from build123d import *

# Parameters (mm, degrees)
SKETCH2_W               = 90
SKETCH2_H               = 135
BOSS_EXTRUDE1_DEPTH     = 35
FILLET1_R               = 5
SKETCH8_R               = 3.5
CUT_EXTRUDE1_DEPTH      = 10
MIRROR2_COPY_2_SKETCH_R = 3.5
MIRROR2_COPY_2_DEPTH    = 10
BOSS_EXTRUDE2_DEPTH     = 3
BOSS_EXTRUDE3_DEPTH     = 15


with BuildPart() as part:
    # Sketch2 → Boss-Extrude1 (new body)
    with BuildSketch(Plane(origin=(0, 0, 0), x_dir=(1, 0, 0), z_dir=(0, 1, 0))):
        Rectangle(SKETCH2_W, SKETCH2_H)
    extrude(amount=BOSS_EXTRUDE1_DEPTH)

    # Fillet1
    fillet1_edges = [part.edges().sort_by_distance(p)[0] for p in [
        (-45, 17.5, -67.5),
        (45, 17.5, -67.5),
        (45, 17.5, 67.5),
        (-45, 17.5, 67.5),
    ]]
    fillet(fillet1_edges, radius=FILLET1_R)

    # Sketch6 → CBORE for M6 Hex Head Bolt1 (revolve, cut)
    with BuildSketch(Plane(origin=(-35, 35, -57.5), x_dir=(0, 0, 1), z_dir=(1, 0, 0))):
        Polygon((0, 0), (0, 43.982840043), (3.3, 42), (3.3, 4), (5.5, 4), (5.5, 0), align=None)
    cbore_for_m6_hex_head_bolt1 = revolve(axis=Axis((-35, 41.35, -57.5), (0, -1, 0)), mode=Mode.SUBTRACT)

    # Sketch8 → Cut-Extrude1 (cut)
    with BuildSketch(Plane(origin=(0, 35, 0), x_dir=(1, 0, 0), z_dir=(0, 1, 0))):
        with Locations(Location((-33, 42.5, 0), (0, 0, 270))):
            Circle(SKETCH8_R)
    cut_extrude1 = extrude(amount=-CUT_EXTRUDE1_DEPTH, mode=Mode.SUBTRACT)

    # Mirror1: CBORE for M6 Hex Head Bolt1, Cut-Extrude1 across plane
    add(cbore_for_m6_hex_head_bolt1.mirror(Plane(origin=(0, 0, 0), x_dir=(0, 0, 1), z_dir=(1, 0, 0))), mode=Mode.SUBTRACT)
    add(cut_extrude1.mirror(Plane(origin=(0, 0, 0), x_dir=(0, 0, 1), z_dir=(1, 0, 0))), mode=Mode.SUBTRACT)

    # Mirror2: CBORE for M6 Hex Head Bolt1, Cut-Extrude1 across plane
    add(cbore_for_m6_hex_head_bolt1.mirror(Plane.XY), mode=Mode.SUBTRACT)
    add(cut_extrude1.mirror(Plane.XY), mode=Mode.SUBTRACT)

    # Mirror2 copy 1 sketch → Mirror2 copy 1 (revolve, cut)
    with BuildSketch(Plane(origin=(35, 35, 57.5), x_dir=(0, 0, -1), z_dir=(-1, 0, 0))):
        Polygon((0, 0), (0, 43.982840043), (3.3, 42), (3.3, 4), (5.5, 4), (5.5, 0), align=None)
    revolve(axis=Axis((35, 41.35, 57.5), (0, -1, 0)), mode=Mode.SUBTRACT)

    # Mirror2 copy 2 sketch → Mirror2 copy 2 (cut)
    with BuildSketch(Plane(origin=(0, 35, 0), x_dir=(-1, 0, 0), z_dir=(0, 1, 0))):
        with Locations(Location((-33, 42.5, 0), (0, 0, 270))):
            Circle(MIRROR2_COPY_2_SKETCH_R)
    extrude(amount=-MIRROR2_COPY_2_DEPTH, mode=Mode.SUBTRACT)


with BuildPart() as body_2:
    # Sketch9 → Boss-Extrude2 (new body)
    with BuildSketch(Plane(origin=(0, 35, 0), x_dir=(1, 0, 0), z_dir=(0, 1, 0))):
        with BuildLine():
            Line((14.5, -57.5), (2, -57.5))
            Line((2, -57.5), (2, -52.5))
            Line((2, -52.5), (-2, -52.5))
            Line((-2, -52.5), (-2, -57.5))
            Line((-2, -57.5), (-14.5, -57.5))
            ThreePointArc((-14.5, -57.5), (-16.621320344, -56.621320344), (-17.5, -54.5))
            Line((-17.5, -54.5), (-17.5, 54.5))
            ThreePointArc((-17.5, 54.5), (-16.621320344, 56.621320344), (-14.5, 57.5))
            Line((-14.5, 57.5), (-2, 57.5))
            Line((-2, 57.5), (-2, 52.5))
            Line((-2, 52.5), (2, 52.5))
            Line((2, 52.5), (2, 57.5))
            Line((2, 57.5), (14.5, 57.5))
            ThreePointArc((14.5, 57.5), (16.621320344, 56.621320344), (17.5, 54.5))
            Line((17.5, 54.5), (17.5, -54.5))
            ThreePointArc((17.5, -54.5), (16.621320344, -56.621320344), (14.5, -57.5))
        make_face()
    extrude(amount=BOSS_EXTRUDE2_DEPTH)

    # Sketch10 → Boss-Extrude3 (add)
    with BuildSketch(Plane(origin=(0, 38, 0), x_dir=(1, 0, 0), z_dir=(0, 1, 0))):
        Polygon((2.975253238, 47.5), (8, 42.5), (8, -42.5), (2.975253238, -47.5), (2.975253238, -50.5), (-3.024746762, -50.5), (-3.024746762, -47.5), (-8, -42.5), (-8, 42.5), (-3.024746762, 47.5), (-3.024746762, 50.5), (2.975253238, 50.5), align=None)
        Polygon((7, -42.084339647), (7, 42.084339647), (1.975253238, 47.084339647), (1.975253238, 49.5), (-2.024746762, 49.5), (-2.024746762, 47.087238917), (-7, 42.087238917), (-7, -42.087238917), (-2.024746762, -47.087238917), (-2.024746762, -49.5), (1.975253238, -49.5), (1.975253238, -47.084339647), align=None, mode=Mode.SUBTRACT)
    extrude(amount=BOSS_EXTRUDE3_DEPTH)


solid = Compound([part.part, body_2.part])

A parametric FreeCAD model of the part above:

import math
import FreeCAD as App
import Part
import Sketcher

V = App.Vector
Q = App.Units.Quantity


def edges_at(feature, points):
    """Names of the edges that pass closest to the given points."""
    edges = feature.Shape.Edges
    near = lambda p: min(range(len(edges)), key=lambda i: edges[i].distToShape(Part.Vertex(*p))[0])
    return sorted({f"Edge{near(p) + 1}" for p in points})

doc = App.newDocument("Part")
body = doc.addObject("PartDesign::Body", "Body")

sketch1 = body.newObject("Sketcher::SketchObject", "Sketch")
sketch1.AttachmentSupport = (doc.getObject("XZ_Plane"), [""])
sketch1.MapMode = "FlatFace"
sketch1.addGeometry([
    Part.LineSegment(V(-45, -68, 0), V(-45, 68, 0)),
    Part.LineSegment(V(-45, 68, 0), V(45, 68, 0)),
    Part.LineSegment(V(45, 68, 0), V(45, -68, 0)),
    Part.LineSegment(V(45, -68, 0), V(-45, -68, 0)),
], False)
sketch1.addConstraint([
    Sketcher.Constraint("Coincident", 0, 2, 1, 1),
    Sketcher.Constraint("Coincident", 1, 2, 2, 1),
    Sketcher.Constraint("Coincident", 2, 2, 3, 1),
    Sketcher.Constraint("Coincident", 3, 2, 0, 1),
    Sketcher.Constraint("Vertical", 0),
    Sketcher.Constraint("Horizontal", 1),
    Sketcher.Constraint("Vertical", 2),
    Sketcher.Constraint("Horizontal", 3),
    Sketcher.Constraint("Symmetric", 0, 2, 2, 2, -1, 1),
    Sketcher.Constraint("DistanceX", 1, 1, 1, 2, Q("90 mm")),
    Sketcher.Constraint("DistanceY", 0, 1, 0, 2, Q("135 mm")),
])
pad1 = body.newObject("PartDesign::Pad", "Pad")
pad1.Profile = sketch1
pad1.Length = 35
pad1.Reversed = True
doc.recompute()

fillet = body.newObject("PartDesign::Fillet", "Fillet")
fillet.Base = (pad1, edges_at(pad1, [
    (-45, 17.5, -67.5),
    (45, 17.5, -67.5),
    (45, 17.5, 67.5),
    (-45, 17.5, 67.5),
]))
fillet.Radius = 5

sketch2 = body.newObject("Sketcher::SketchObject", "Sketch001")
sketch2.AttachmentSupport = (doc.getObject("YZ_Plane"), [""])
sketch2.MapMode = "FlatFace"
sketch2.AttachmentOffset = App.Placement(V(0, 0, -35), App.Rotation())
sketch2.addGeometry([
    Part.LineSegment(V(-9, -57.5, 0), V(35, -57.5, 0)),
    Part.LineSegment(V(35, -57.5, 0), V(35, -52, 0)),
    Part.LineSegment(V(35, -52, 0), V(31, -52, 0)),
    Part.LineSegment(V(31, -52, 0), V(31, -54.2, 0)),
    Part.LineSegment(V(31, -54.2, 0), V(-7, -54.2, 0)),
    Part.LineSegment(V(-7, -54.2, 0), V(-9, -57.5, 0)),
], False)
sketch2.addGeometry(Part.LineSegment(V(35, -57.5, 0), V(-9, -57.5, 0)), True)
sketch2.addConstraint([
    Sketcher.Constraint("Coincident", 0, 2, 1, 1),
    Sketcher.Constraint("Coincident", 1, 2, 2, 1),
    Sketcher.Constraint("Coincident", 2, 2, 3, 1),
    Sketcher.Constraint("Coincident", 3, 2, 4, 1),
    Sketcher.Constraint("Coincident", 4, 2, 5, 1),
    Sketcher.Constraint("Coincident", 5, 2, 0, 1),
    Sketcher.Constraint("Horizontal", 0),
    Sketcher.Constraint("Vertical", 1),
    Sketcher.Constraint("Horizontal", 2),
    Sketcher.Constraint("Vertical", 3),
    Sketcher.Constraint("Horizontal", 4),
    Sketcher.Constraint("Horizontal", 6),
    Sketcher.Constraint("Coincident", 6, 1, 0, 2),
    Sketcher.Constraint("Equal", 0, 6),
    Sketcher.Constraint("DistanceX", 2, 2, 2, 1, Q("4 mm")),
    Sketcher.Constraint("DistanceX", 4, 2, 4, 1, Q("38 mm")),
    Sketcher.Constraint("Angle", 5, Q("-121 deg")),
    Sketcher.Constraint("DistanceY", 1, 1, 1, 2, Q("5.5 mm")),
    Sketcher.Constraint("DistanceY", 3, 2, 3, 1, Q("2.2 mm")),
    Sketcher.Constraint("DistanceX", -1, 1, 0, 2, Q("35 mm")),
    Sketcher.Constraint("DistanceY", 1, 2, -1, 1, Q("52 mm")),
])
groove = body.newObject("PartDesign::Groove", "Groove")
groove.Profile = sketch2
groove.ReferenceAxis = (sketch2, ["Axis0"])
groove.Angle = 360

sketch3 = body.newObject("Sketcher::SketchObject", "Sketch002")
sketch3.AttachmentSupport = (doc.getObject("XZ_Plane"), [""])
sketch3.MapMode = "FlatFace"
sketch3.AttachmentOffset = App.Placement(V(0, 0, -35), App.Rotation())
sketch3.addGeometry(Part.Circle(V(-33, -42.5, 0), V(0, 0, 1), 3.5), False)
sketch3.addConstraint([
    Sketcher.Constraint("Diameter", 0, Q("7 mm")),
    Sketcher.Constraint("DistanceX", 0, 3, -1, 1, Q("33 mm")),
    Sketcher.Constraint("DistanceY", 0, 3, -1, 1, Q("42.5 mm")),
])
pocket1 = body.newObject("PartDesign::Pocket", "Pocket")
pocket1.Profile = sketch3
pocket1.Length = 10
pocket1.Reversed = True
doc.recompute()

mirrored = body.newObject("PartDesign::Mirrored", "Mirrored")
mirrored.Originals = [groove, pocket1]
mirrored.MirrorPlane = (doc.getObject("YZ_Plane"), [""])
body.Tip = mirrored
doc.recompute()

mirrored2 = body.newObject("PartDesign::Mirrored", "Mirrored001")
mirrored2.Originals = [groove, pocket1]
mirrored2.MirrorPlane = (doc.getObject("XY_Plane"), [""])
body.Tip = mirrored2

sketch4 = body.newObject("Sketcher::SketchObject", "Sketch003")
sketch4.AttachmentSupport = (doc.getObject("YZ_Plane"), [""])
sketch4.MapMode = "FlatFace"
sketch4.AttachmentOffset = App.Placement(V(0, 0, 35), App.Rotation())
sketch4.addGeometry([
    Part.LineSegment(V(-9, 57.5, 0), V(35, 57.5, 0)),
    Part.LineSegment(V(35, 57.5, 0), V(35, 52, 0)),
    Part.LineSegment(V(35, 52, 0), V(31, 52, 0)),
    Part.LineSegment(V(31, 52, 0), V(31, 54.2, 0)),
    Part.LineSegment(V(31, 54.2, 0), V(-7, 54.2, 0)),
    Part.LineSegment(V(-7, 54.2, 0), V(-9, 57.5, 0)),
], False)
sketch4.addGeometry(Part.LineSegment(V(35, 57.5, 0), V(-9, 57.5, 0)), True)
sketch4.addConstraint([
    Sketcher.Constraint("Coincident", 0, 2, 1, 1),
    Sketcher.Constraint("Coincident", 1, 2, 2, 1),
    Sketcher.Constraint("Coincident", 2, 2, 3, 1),
    Sketcher.Constraint("Coincident", 3, 2, 4, 1),
    Sketcher.Constraint("Coincident", 4, 2, 5, 1),
    Sketcher.Constraint("Coincident", 5, 2, 0, 1),
    Sketcher.Constraint("Horizontal", 0),
    Sketcher.Constraint("Vertical", 1),
    Sketcher.Constraint("Horizontal", 2),
    Sketcher.Constraint("Vertical", 3),
    Sketcher.Constraint("Horizontal", 4),
    Sketcher.Constraint("Horizontal", 6),
    Sketcher.Constraint("Coincident", 6, 1, 0, 2),
    Sketcher.Constraint("Equal", 0, 6),
    Sketcher.Constraint("DistanceX", 2, 2, 2, 1, Q("4 mm")),
    Sketcher.Constraint("DistanceX", 4, 2, 4, 1, Q("38 mm")),
    Sketcher.Constraint("Angle", 5, Q("121 deg")),
    Sketcher.Constraint("DistanceY", 1, 2, 1, 1, Q("5.5 mm")),
    Sketcher.Constraint("DistanceY", 3, 1, 3, 2, Q("2.2 mm")),
    Sketcher.Constraint("DistanceX", -1, 1, 0, 2, Q("35 mm")),
    Sketcher.Constraint("DistanceY", -1, 1, 1, 2, Q("52 mm")),
])
groove2 = body.newObject("PartDesign::Groove", "Groove001")
groove2.Profile = sketch4
groove2.ReferenceAxis = (sketch4, ["Axis0"])
groove2.Angle = 360

sketch5 = body.newObject("Sketcher::SketchObject", "Sketch004")
sketch5.AttachmentSupport = (doc.getObject("XZ_Plane"), [""])
sketch5.MapMode = "FlatFace"
sketch5.AttachmentOffset = App.Placement(V(0, 0, -35), App.Rotation())
sketch5.addGeometry(Part.Circle(V(33, 42.5, 0), V(0, 0, 1), 3.5), False)
sketch5.addConstraint([
    Sketcher.Constraint("Diameter", 0, Q("7 mm")),
    Sketcher.Constraint("DistanceX", -1, 1, 0, 3, Q("33 mm")),
    Sketcher.Constraint("DistanceY", -1, 1, 0, 3, Q("42.5 mm")),
])
pocket2 = body.newObject("PartDesign::Pocket", "Pocket001")
pocket2.Profile = sketch5
pocket2.Length = 10
pocket2.Reversed = True
body2 = doc.addObject("PartDesign::Body", "Body001")

sketch6 = body2.newObject("Sketcher::SketchObject", "Sketch005")
sketch6.AttachmentSupport = (doc.getObject("XZ_Plane001"), [""])
sketch6.MapMode = "FlatFace"
sketch6.AttachmentOffset = App.Placement(V(0, 0, -35), App.Rotation())
sketch6.addGeometry([
    Part.LineSegment(V(2, 57.5, 0), V(14.5, 57.5, 0)),
    Part.ArcOfCircle(Part.Circle(V(14.5, 54.5, 0), V(0, 0, 1), 3), math.radians(0), math.radians(90)),
    Part.LineSegment(V(17.5, 54.5, 0), V(17.5, -54.5, 0)),
    Part.ArcOfCircle(Part.Circle(V(14.5, -54.5, 0), V(0, 0, 1), 3), math.radians(-90), math.radians(0)),
    Part.LineSegment(V(14.5, -57.5, 0), V(2, -57.5, 0)),
    Part.LineSegment(V(2, -57.5, 0), V(2, -52.5, 0)),
    Part.LineSegment(V(2, -52.5, 0), V(-2, -52.5, 0)),
    Part.LineSegment(V(-2, -52.5, 0), V(-2, -57.5, 0)),
    Part.LineSegment(V(-2, -57.5, 0), V(-14.5, -57.5, 0)),
    Part.ArcOfCircle(Part.Circle(V(-14.5, -54.5, 0), V(0, 0, 1), 3), math.radians(180), math.radians(270)),
    Part.LineSegment(V(-17.5, -54.5, 0), V(-17.5, 54.5, 0)),
    Part.ArcOfCircle(Part.Circle(V(-14.5, 54.5, 0), V(0, 0, 1), 3), math.radians(90), math.radians(180)),
    Part.LineSegment(V(-14.5, 57.5, 0), V(-2, 57.5, 0)),
    Part.LineSegment(V(-2, 57.5, 0), V(-2, 52.5, 0)),
    Part.LineSegment(V(-2, 52.5, 0), V(2, 52.5, 0)),
    Part.LineSegment(V(2, 52.5, 0), V(2, 57.5, 0)),
], False)
sketch6.addConstraint([
    Sketcher.Constraint("Tangent", 0, 2, 1, 2),
    Sketcher.Constraint("Tangent", 1, 1, 2, 1),
    Sketcher.Constraint("Tangent", 2, 2, 3, 2),
    Sketcher.Constraint("Tangent", 3, 1, 4, 1),
    Sketcher.Constraint("Coincident", 4, 2, 5, 1),
    Sketcher.Constraint("Coincident", 5, 2, 6, 1),
    Sketcher.Constraint("Coincident", 6, 2, 7, 1),
    Sketcher.Constraint("Coincident", 7, 2, 8, 1),
    Sketcher.Constraint("Tangent", 8, 2, 9, 2),
    Sketcher.Constraint("Tangent", 9, 1, 10, 1),
    Sketcher.Constraint("Tangent", 10, 2, 11, 2),
    Sketcher.Constraint("Tangent", 11, 1, 12, 1),
    Sketcher.Constraint("Coincident", 12, 2, 13, 1),
    Sketcher.Constraint("Coincident", 13, 2, 14, 1),
    Sketcher.Constraint("Coincident", 14, 2, 15, 1),
    Sketcher.Constraint("Coincident", 15, 2, 0, 1),
    Sketcher.Constraint("Horizontal", 0),
    Sketcher.Constraint("Vertical", 2),
    Sketcher.Constraint("Horizontal", 4),
    Sketcher.Constraint("Vertical", 5),
    Sketcher.Constraint("Horizontal", 6),
    Sketcher.Constraint("Vertical", 7),
    Sketcher.Constraint("Horizontal", 8),
    Sketcher.Constraint("Vertical", 10),
    Sketcher.Constraint("Horizontal", 12),
    Sketcher.Constraint("Vertical", 13),
    Sketcher.Constraint("Horizontal", 14),
    Sketcher.Constraint("Vertical", 15),
    Sketcher.Constraint("Equal", 1, 3),
    Sketcher.Constraint("Equal", 3, 9),
    Sketcher.Constraint("Equal", 9, 11),
    Sketcher.Constraint("Symmetric", 1, 3, 9, 3, -1, 1),
    Sketcher.Constraint("Symmetric", 4, 2, 12, 2, -1, 1),
    Sketcher.Constraint("Symmetric", 6, 2, 14, 2, -1, 1),
    Sketcher.Constraint("Symmetric", 4, 2, 7, 2, -2),
    Sketcher.Constraint("Radius", 1, Q("3 mm")),
    Sketcher.Constraint("DistanceX", 6, 2, 6, 1, Q("4 mm")),
    Sketcher.Constraint("DistanceY", 2, 2, 2, 1, Q("109 mm")),
    Sketcher.Constraint("DistanceY", 5, 1, 5, 2, Q("5 mm")),
    Sketcher.Constraint("DistanceX", 0, 1, 0, 2, Q("12.5 mm")),
])
pad2 = body2.newObject("PartDesign::Pad", "Pad001")
pad2.Profile = sketch6
pad2.Length = 3
pad2.Reversed = True

sketch7 = body2.newObject("Sketcher::SketchObject", "Sketch006")
sketch7.AttachmentSupport = (doc.getObject("XZ_Plane001"), [""])
sketch7.MapMode = "FlatFace"
sketch7.AttachmentOffset = App.Placement(V(0, 0, -38), App.Rotation())
sketch7.addGeometry([
    Part.LineSegment(V(8, -42.5, 0), V(3, -47.5, 0)),
    Part.LineSegment(V(3, -47.5, 0), V(3, -50.5, 0)),
    Part.LineSegment(V(3, -50.5, 0), V(-3, -50.5, 0)),
    Part.LineSegment(V(-3, -50.5, 0), V(-3, -47.5, 0)),
    Part.LineSegment(V(-3, -47.5, 0), V(-8, -42.5, 0)),
    Part.LineSegment(V(-8, -42.5, 0), V(-8, 42.5, 0)),
    Part.LineSegment(V(-8, 42.5, 0), V(-3, 47.5, 0)),
    Part.LineSegment(V(-3, 47.5, 0), V(-3, 50.5, 0)),
    Part.LineSegment(V(-3, 50.5, 0), V(3, 50.5, 0)),
    Part.LineSegment(V(3, 50.5, 0), V(3, 47.5, 0)),
    Part.LineSegment(V(3, 47.5, 0), V(8, 42.5, 0)),
    Part.LineSegment(V(8, 42.5, 0), V(8, -42.5, 0)),
    Part.LineSegment(V(7, 42.1, 0), V(2, 47.1, 0)),
    Part.LineSegment(V(2, 47.1, 0), V(2, 49.5, 0)),
    Part.LineSegment(V(2, 49.5, 0), V(-2, 49.5, 0)),
    Part.LineSegment(V(-2, 49.5, 0), V(-2, 47.1, 0)),
    Part.LineSegment(V(-2, 47.1, 0), V(-7, 42.1, 0)),
    Part.LineSegment(V(-7, 42.1, 0), V(-7, -42.1, 0)),
    Part.LineSegment(V(-7, -42.1, 0), V(-2, -47.1, 0)),
    Part.LineSegment(V(-2, -47.1, 0), V(-2, -49.5, 0)),
    Part.LineSegment(V(-2, -49.5, 0), V(2, -49.5, 0)),
    Part.LineSegment(V(2, -49.5, 0), V(2, -47.1, 0)),
    Part.LineSegment(V(2, -47.1, 0), V(7, -42.1, 0)),
    Part.LineSegment(V(7, -42.1, 0), V(7, 42.1, 0)),
], False)
sketch7.addConstraint([
    Sketcher.Constraint("Coincident", 0, 2, 1, 1),
    Sketcher.Constraint("Coincident", 1, 2, 2, 1),
    Sketcher.Constraint("Coincident", 2, 2, 3, 1),
    Sketcher.Constraint("Coincident", 3, 2, 4, 1),
    Sketcher.Constraint("Coincident", 4, 2, 5, 1),
    Sketcher.Constraint("Coincident", 5, 2, 6, 1),
    Sketcher.Constraint("Coincident", 6, 2, 7, 1),
    Sketcher.Constraint("Coincident", 7, 2, 8, 1),
    Sketcher.Constraint("Coincident", 8, 2, 9, 1),
    Sketcher.Constraint("Coincident", 9, 2, 10, 1),
    Sketcher.Constraint("Coincident", 10, 2, 11, 1),
    Sketcher.Constraint("Coincident", 11, 2, 0, 1),
    Sketcher.Constraint("Coincident", 12, 2, 13, 1),
    Sketcher.Constraint("Coincident", 13, 2, 14, 1),
    Sketcher.Constraint("Coincident", 14, 2, 15, 1),
    Sketcher.Constraint("Coincident", 15, 2, 16, 1),
    Sketcher.Constraint("Coincident", 16, 2, 17, 1),
    Sketcher.Constraint("Coincident", 17, 2, 18, 1),
    Sketcher.Constraint("Coincident", 18, 2, 19, 1),
    Sketcher.Constraint("Coincident", 19, 2, 20, 1),
    Sketcher.Constraint("Coincident", 20, 2, 21, 1),
    Sketcher.Constraint("Coincident", 21, 2, 22, 1),
    Sketcher.Constraint("Coincident", 22, 2, 23, 1),
    Sketcher.Constraint("Coincident", 23, 2, 12, 1),
    Sketcher.Constraint("Vertical", 1),
    Sketcher.Constraint("Horizontal", 2),
    Sketcher.Constraint("Vertical", 3),
    Sketcher.Constraint("Vertical", 5),
    Sketcher.Constraint("Vertical", 7),
    Sketcher.Constraint("Horizontal", 8),
    Sketcher.Constraint("Vertical", 9),
    Sketcher.Constraint("Vertical", 11),
    Sketcher.Constraint("Vertical", 13),
    Sketcher.Constraint("Horizontal", 14),
    Sketcher.Constraint("Vertical", 15),
    Sketcher.Constraint("Vertical", 17),
    Sketcher.Constraint("Vertical", 19),
    Sketcher.Constraint("Horizontal", 20),
    Sketcher.Constraint("Vertical", 21),
    Sketcher.Constraint("Vertical", 23),
    Sketcher.Constraint("Symmetric", 4, 2, 10, 2, -1, 1),
    Sketcher.Constraint("Symmetric", 3, 2, 6, 2, -1),
    Sketcher.Constraint("Symmetric", 1, 2, 8, 2, -1),
    Sketcher.Constraint("Symmetric", 15, 2, 18, 2, -1),
    Sketcher.Constraint("Symmetric", 13, 2, 20, 2, -1),
    Sketcher.Constraint("Parallel", 10, 12),
    Sketcher.Constraint("Parallel", 6, 16),
    Sketcher.Constraint("Parallel", 4, 18),
    Sketcher.Constraint("Parallel", 0, 22),
    Sketcher.Constraint("Horizontal", 0, 2, 3, 2),
    Sketcher.Constraint("Horizontal", 6, 2, 9, 2),
    Sketcher.Constraint("Horizontal", 5, 2, 10, 2),
    Sketcher.Constraint("Horizontal", 4, 2, 11, 2),
    Sketcher.Constraint("Equal", 13, 21),
    Sketcher.Constraint("Equal", 10, 12),
    Sketcher.Constraint("Equal", 6, 16),
    Sketcher.Constraint("DistanceX", 2, 2, 2, 1, Q("6 mm")),
    Sketcher.Constraint("DistanceX", 14, 2, 14, 1, Q("4 mm")),
    Sketcher.Constraint("DistanceY", 1, 2, 1, 1, Q("3 mm")),
    Sketcher.Constraint("DistanceY", 5, 1, 5, 2, Q("85 mm")),
    Sketcher.Constraint("DistanceX", 4, 2, -1, 1, Q("8 mm")),
    Sketcher.Constraint("DistanceX", 16, 2, -1, 1, Q("7 mm")),
    Sketcher.Constraint("DistanceY", 3, 2, 4, 2, Q("5 mm")),
    Sketcher.Constraint("DistanceY", 13, 2, 8, 2, Q("1 mm")),
    Sketcher.Constraint("DistanceY", 13, 1, 13, 2, Q("2.41566 mm")),
    Sketcher.Constraint("DistanceY", 15, 2, 15, 1, Q("2.412761 mm")),
    Sketcher.Constraint("Distance", 0, Q("7.088588 mm")),
])
pad3 = body2.newObject("PartDesign::Pad", "Pad002")
pad3.Profile = sketch7
pad3.Length = 15
pad3.Reversed = True

doc.recompute()
